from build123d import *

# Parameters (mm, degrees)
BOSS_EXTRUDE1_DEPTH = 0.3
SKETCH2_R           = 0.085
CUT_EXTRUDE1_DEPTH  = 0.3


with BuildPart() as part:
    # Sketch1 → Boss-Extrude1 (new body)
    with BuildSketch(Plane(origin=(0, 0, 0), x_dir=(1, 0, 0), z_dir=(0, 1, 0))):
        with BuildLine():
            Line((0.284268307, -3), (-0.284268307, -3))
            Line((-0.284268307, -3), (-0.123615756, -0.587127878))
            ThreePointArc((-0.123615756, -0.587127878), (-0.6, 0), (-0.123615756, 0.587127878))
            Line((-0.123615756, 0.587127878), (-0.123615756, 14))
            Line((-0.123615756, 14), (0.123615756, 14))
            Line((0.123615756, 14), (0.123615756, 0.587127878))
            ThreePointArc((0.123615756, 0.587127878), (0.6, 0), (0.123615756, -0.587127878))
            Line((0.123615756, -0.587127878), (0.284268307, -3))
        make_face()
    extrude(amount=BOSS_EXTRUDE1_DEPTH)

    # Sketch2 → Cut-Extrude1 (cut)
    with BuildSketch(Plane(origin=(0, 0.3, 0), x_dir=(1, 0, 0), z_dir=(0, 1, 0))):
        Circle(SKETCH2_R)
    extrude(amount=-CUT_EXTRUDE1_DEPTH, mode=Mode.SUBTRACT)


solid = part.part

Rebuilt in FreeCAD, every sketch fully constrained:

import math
import FreeCAD as App
import Part
import Sketcher

V = App.Vector
Q = App.Units.Quantity

doc = App.newDocument("Part")
params = doc.addObject("Spreadsheet::Sheet", "Params")
for row, (alias, value) in enumerate([
    ("sketch1_radius", "0.6 mm"),
    ("pad1_length", "0.3 mm"),
    ("sketch2_diameter", "0.17 mm"),
    ("pocket1_length", "0.3 mm"),
], start=1):
    params.set(f"A{row}", alias)
    params.set(f"B{row}", "=" + value)
    params.setAlias(f"B{row}", alias)

body = doc.addObject("PartDesign::Body", "Body")

# Sketch on XZ plane
sketch1 = body.newObject("Sketcher::SketchObject", "Sketch")
sketch1.AttachmentSupport = (doc.getObject("XZ_Plane"), [""])
sketch1.MapMode = "FlatFace"
sketch1.addGeometry([
    Part.LineSegment(V(-0.28, 3, 0), V(0.28, 3, 0)),  # 0
    Part.LineSegment(V(0.28, 3, 0), V(0.12, 0.59, 0)),  # 1
    Part.ArcOfCircle(Part.Circle(V(0, 0, 0), V(0, 0, 1), 0.6), math.radians(-78), math.radians(78)),  # 2
    Part.LineSegment(V(0.12, -0.59, 0), V(0.12, -14, 0)),  # 3
    Part.LineSegment(V(0.12, -14, 0), V(-0.12, -14, 0)),  # 4
    Part.LineSegment(V(-0.12, -14, 0), V(-0.12, -0.59, 0)),  # 5
    Part.ArcOfCircle(Part.Circle(V(0, 0, 0), V(0, 0, 1), 0.6), math.radians(102), math.radians(258)),  # 6
    Part.LineSegment(V(-0.12, 0.59, 0), V(-0.28, 3, 0)),  # 7
], False)
sketch1.addConstraint([
    Sketcher.Constraint("Coincident", 0, 2, 1, 1),
    Sketcher.Constraint("Coincident", 1, 2, 2, 2),
    Sketcher.Constraint("Coincident", 2, 1, 3, 1),
    Sketcher.Constraint("Coincident", 3, 2, 4, 1),
    Sketcher.Constraint("Coincident", 4, 2, 5, 1),
    Sketcher.Constraint("Coincident", 5, 2, 6, 2),
    Sketcher.Constraint("Coincident", 6, 1, 7, 1),
    Sketcher.Constraint("Coincident", 7, 2, 0, 1),
    Sketcher.Constraint("Horizontal", 0),
    Sketcher.Constraint("Vertical", 3),
    Sketcher.Constraint("Horizontal", 4),
    Sketcher.Constraint("Vertical", 5),
    Sketcher.Constraint("Coincident", 2, 3, -1, 1),
    Sketcher.Constraint("Coincident", 6, 3, -1, 1),
    Sketcher.Constraint("Equal", 2, 6),
    Sketcher.Constraint("Horizontal", 2, 1, 5, 2),
    Sketcher.Constraint("Horizontal", 1, 2, 6, 1),
    Sketcher.Constraint("Vertical", 1, 2, 2, 1),
    Sketcher.Constraint("Equal", 1, 7),
    Sketcher.Constraint("Radius", 2, Q("0.6 mm")),
    Sketcher.Constraint("DistanceY", -1, 1, 0, 2, Q("3 mm")),
    Sketcher.Constraint("DistanceY", 3, 2, -1, 1, Q("14 mm")),
    Sketcher.Constraint("DistanceX", 4, 2, 4, 1, Q("0.247232 mm")),
    Sketcher.Constraint("DistanceX", 0, 1, 0, 2, Q("0.568537 mm")),
])
sketch1.setExpression("Constraints[19]", "Params.sketch1_radius")
pad1 = body.newObject("PartDesign::Pad", "Pad")
pad1.Profile = sketch1
pad1.setExpression("Length", "Params.pad1_length")
pad1.Reversed = True

# Sketch on XZ plane
sketch2 = body.newObject("Sketcher::SketchObject", "Sketch001")
sketch2.AttachmentSupport = (doc.getObject("XZ_Plane"), [""])
sketch2.MapMode = "FlatFace"
sketch2.AttachmentOffset = App.Placement(V(0, 0, -0.3), App.Rotation())
sketch2.addGeometry(Part.Circle(V(0, 0, 0), V(0, 0, 1), 0.09), False)
sketch2.addConstraint([
    Sketcher.Constraint("Coincident", 0, 3, -1, 1),
    Sketcher.Constraint("Diameter", 0, Q("0.17 mm")),
])
sketch2.setExpression("Constraints[1]", "Params.sketch2_diameter")
pocket1 = body.newObject("PartDesign::Pocket", "Pocket")
pocket1.Profile = sketch2
pocket1.setExpression("Length", "Params.pocket1_length")
pocket1.Reversed = True

doc.recompute()
